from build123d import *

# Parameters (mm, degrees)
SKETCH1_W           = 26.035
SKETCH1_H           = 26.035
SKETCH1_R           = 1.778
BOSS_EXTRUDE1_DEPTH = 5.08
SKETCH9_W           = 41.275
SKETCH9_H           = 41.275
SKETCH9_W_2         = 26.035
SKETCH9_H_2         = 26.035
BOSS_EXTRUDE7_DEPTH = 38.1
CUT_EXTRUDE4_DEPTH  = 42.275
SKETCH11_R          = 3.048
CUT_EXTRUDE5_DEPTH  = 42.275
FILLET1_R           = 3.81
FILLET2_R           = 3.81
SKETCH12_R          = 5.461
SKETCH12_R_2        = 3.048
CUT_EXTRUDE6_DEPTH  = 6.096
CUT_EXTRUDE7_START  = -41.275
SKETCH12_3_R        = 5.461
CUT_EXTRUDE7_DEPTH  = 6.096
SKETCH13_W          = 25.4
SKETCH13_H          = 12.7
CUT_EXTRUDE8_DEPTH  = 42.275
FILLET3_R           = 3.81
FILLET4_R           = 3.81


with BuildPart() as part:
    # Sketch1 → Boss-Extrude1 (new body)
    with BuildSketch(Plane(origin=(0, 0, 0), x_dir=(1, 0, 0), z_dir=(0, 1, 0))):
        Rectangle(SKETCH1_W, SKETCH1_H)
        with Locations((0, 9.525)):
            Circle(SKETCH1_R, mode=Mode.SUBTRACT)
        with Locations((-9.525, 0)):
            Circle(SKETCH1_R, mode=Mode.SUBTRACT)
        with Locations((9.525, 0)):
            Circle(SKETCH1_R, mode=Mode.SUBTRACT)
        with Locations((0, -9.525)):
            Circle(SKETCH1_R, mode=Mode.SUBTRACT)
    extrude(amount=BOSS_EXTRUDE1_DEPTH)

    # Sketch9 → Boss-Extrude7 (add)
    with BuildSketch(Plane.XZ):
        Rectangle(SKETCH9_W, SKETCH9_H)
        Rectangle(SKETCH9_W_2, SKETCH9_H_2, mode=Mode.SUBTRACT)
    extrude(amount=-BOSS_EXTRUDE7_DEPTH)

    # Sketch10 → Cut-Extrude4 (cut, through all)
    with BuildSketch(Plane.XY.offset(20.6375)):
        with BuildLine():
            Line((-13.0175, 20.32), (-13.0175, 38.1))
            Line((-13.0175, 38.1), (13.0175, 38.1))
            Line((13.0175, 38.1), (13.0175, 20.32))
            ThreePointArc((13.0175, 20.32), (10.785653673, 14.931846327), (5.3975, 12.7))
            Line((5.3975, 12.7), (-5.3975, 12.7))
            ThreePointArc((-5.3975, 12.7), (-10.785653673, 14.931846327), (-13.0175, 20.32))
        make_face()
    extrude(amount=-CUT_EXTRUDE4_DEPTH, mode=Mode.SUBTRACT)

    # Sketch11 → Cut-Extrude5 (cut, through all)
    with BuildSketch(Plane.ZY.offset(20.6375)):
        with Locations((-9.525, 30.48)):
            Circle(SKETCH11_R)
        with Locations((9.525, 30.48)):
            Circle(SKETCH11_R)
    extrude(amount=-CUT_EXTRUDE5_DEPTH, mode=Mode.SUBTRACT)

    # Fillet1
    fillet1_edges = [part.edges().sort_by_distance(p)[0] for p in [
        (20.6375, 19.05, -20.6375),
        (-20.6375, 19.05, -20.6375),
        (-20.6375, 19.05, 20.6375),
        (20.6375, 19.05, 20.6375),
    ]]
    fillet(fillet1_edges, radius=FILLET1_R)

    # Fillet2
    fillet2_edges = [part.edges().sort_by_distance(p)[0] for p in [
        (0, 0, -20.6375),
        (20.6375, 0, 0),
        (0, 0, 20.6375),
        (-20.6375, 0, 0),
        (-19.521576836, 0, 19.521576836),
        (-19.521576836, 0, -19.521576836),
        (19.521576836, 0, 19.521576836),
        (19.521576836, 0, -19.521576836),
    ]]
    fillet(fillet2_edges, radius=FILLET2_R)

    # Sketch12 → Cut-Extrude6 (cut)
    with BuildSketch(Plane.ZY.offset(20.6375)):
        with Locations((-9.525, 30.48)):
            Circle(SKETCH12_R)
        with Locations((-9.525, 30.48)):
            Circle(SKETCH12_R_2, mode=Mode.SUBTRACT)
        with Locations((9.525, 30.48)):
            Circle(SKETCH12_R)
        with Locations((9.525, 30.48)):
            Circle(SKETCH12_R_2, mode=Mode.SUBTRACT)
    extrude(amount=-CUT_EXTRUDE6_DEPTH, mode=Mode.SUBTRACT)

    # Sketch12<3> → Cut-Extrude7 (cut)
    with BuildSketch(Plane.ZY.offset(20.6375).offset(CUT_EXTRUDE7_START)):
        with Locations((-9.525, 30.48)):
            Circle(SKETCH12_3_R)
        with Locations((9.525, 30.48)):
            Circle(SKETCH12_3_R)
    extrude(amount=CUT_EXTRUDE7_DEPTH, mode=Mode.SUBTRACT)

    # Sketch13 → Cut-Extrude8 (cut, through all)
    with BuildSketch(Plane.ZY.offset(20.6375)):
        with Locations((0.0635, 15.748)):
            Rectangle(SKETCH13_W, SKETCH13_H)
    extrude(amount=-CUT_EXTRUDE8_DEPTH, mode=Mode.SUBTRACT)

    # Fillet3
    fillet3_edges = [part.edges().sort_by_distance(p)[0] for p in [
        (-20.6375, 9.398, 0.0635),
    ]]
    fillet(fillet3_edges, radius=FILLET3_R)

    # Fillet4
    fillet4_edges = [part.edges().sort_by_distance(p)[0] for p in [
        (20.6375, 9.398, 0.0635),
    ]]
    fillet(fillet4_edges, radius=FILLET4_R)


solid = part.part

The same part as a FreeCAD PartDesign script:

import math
import FreeCAD as App
import Part
import Sketcher
from FreeCAD import Vector
Q = App.Units.Quantity


def edges_at(feature, points):
    """Names of the edges that pass closest to the given points."""
    edges = feature.Shape.Edges
    near = lambda p: min(range(len(edges)), key=lambda i: edges[i].distToShape(Part.Vertex(*p))[0])
    return sorted({f"Edge{near(p) + 1}" for p in points})


def add_polygon(sketch, points):
    """Adds a closed chain of lines whose ends are joined by coincident constraints."""
    first, n = sketch.GeometryCount, len(points)
    for a, b in zip(points, points[1:] + points[:1]):
        sketch.addGeometry(Part.LineSegment(App.Vector(*a, 0), App.Vector(*b, 0)), False)
    for i in range(n):
        sketch.addConstraint(Sketcher.Constraint("Coincident", first + i, 2, first + (i + 1) % n, 1))

doc = App.newDocument("Part")
body = doc.addObject("PartDesign::Body", "Body")

sketch1 = body.newObject("Sketcher::SketchObject", "Sketch")
sketch1.AttachmentSupport = (doc.getObject("XZ_Plane"), [""])
sketch1.MapMode = "FlatFace"
add_polygon(sketch1, [(-13, -13), (-13, 13), (13, 13), (13, -13)])
sketch1.addGeometry(Part.Circle(Vector(0, 9.5, 0), Vector(0, 0, 1), 1.8), False)
sketch1.addGeometry(Part.Circle(Vector(-9.5, 0, 0), Vector(0, 0, 1), 1.8), False)
sketch1.addGeometry(Part.Circle(Vector(9.5, 0, 0), Vector(0, 0, 1), 1.8), False)
sketch1.addGeometry(Part.Circle(Vector(0, -9.5, 0), Vector(0, 0, 1), 1.8), False)
sketch1.addConstraint(Sketcher.Constraint("Vertical", 0))
sketch1.addConstraint(Sketcher.Constraint("Horizontal", 1))
sketch1.addConstraint(Sketcher.Constraint("Vertical", 2))
sketch1.addConstraint(Sketcher.Constraint("Horizontal", 3))
sketch1.addConstraint(Sketcher.Constraint("Equal", 4, 5))
sketch1.addConstraint(Sketcher.Constraint("Equal", 5, 6))
sketch1.addConstraint(Sketcher.Constraint("Equal", 6, 7))
sketch1.addConstraint(Sketcher.Constraint("Symmetric", 5, 3, 6, 3, -1, 1))
sketch1.addConstraint(Sketcher.Constraint("Symmetric", 4, 3, 7, 3, -1, 1))
sketch1.addConstraint(Sketcher.Constraint("Symmetric", 0, 2, 2, 2, -1, 1))
sketch1.addConstraint(Sketcher.Constraint("PointOnObject", 4, 3, -2))
sketch1.addConstraint(Sketcher.Constraint("PointOnObject", 5, 3, -1))
sketch1.addConstraint(Sketcher.Constraint("Equal", 3, 0))
sketch1.addConstraint(Sketcher.Constraint("Diameter", 4, Q("0.14 in")))
sketch1.addConstraint(Sketcher.Constraint("DistanceX", 1, 1, 1, 2, Q("1.025 in")))
sketch1.addConstraint(Sketcher.Constraint("DistanceX", 5, 3, 6, 3, Q("0.75 in")))
sketch1.addConstraint(Sketcher.Constraint("DistanceY", 7, 3, 4, 3, Q("0.75 in")))
pad1 = body.newObject("PartDesign::Pad", "Pad")
pad1.Profile = sketch1
pad1.Length = Q("0.2 in")
pad1.Reversed = True

sketch2 = body.newObject("Sketcher::SketchObject", "Sketch001")
sketch2.AttachmentSupport = (doc.getObject("XZ_Plane"), [""])
sketch2.MapMode = "FlatFace"
add_polygon(sketch2, [(-21, 21), (-21, -21), (21, -21), (21, 21)])
add_polygon(sketch2, [(13, -13), (-13, -13), (-13, 13), (13, 13)])
sketch2.addConstraint(Sketcher.Constraint("Vertical", 0))
sketch2.addConstraint(Sketcher.Constraint("Horizontal", 1))
sketch2.addConstraint(Sketcher.Constraint("Vertical", 2))
sketch2.addConstraint(Sketcher.Constraint("Horizontal", 3))
sketch2.addConstraint(Sketcher.Constraint("Horizontal", 4))
sketch2.addConstraint(Sketcher.Constraint("Vertical", 5))
sketch2.addConstraint(Sketcher.Constraint("Horizontal", 6))
sketch2.addConstraint(Sketcher.Constraint("Vertical", 7))
sketch2.addConstraint(Sketcher.Constraint("Symmetric", 0, 2, 2, 2, -1, 1))
sketch2.addConstraint(Sketcher.Constraint("Symmetric", 4, 2, 6, 2, -1, 1))
sketch2.addConstraint(Sketcher.Constraint("Equal", 3, 0))
sketch2.addConstraint(Sketcher.Constraint("Equal", 6, 5))
sketch2.addConstraint(Sketcher.Constraint("DistanceX", 0, 2, 4, 2, Q("0.3 in")))
sketch2.addConstraint(Sketcher.Constraint("DistanceX", 1, 1, 1, 2, Q("1.625 in")))
pad2 = body.newObject("PartDesign::Pad", "Pad001")
pad2.Profile = sketch2
pad2.Length = Q("1.5 in")
pad2.Reversed = True

sketch3 = body.newObject("Sketcher::SketchObject", "Sketch002")
sketch3.AttachmentSupport = (doc.getObject("XY_Plane"), [""])
sketch3.MapMode = "FlatFace"
sketch3.AttachmentOffset = App.Placement(Vector(0, 0, 0.8125 * 25.4), App.Rotation())
sketch3.addGeometry(Part.LineSegment(Vector(-13, 38, 0), Vector(-13, 20, 0)), False)
sketch3.addGeometry(Part.ArcOfCircle(Part.Circle(Vector(-5, 20, 0), Vector(0, 0, 1), 8), math.radians(180), math.radians(270)), False)
sketch3.addGeometry(Part.LineSegment(Vector(-5, 13, 0), Vector(5, 13, 0)), False)
sketch3.addGeometry(Part.ArcOfCircle(Part.Circle(Vector(5, 20, 0), Vector(0, 0, 1), 8), math.radians(-90), math.radians(0)), False)
sketch3.addGeometry(Part.LineSegment(Vector(13, 20, 0), Vector(13, 38, 0)), False)
sketch3.addGeometry(Part.LineSegment(Vector(13, 38, 0), Vector(-13, 38, 0)), False)
sketch3.addConstraint(Sketcher.Constraint("Tangent", 0, 2, 1, 1))
sketch3.addConstraint(Sketcher.Constraint("Tangent", 1, 2, 2, 1))
sketch3.addConstraint(Sketcher.Constraint("Tangent", 2, 2, 3, 1))
sketch3.addConstraint(Sketcher.Constraint("Tangent", 3, 2, 4, 1))
sketch3.addConstraint(Sketcher.Constraint("Coincident", 4, 2, 5, 1))
sketch3.addConstraint(Sketcher.Constraint("Coincident", 5, 2, 0, 1))
sketch3.addConstraint(Sketcher.Constraint("Vertical", 0))
sketch3.addConstraint(Sketcher.Constraint("Horizontal", 2))
sketch3.addConstraint(Sketcher.Constraint("Vertical", 4))
sketch3.addConstraint(Sketcher.Constraint("Horizontal", 5))
sketch3.addConstraint(Sketcher.Constraint("Equal", 1, 3))
sketch3.addConstraint(Sketcher.Constraint("Radius", 1, Q("0.3 in")))
sketch3.addConstraint(Sketcher.Constraint("DistanceY", 0, 2, 0, 1, Q("0.7 in")))
sketch3.addConstraint(Sketcher.Constraint("DistanceY", -1, 1, 1, 3, Q("0.8 in")))
sketch3.addConstraint(Sketcher.Constraint("DistanceX", 2, 1, 2, 2, Q("0.425 in")))
sketch3.addConstraint(Sketcher.Constraint("DistanceX", 1, 3, -1, 1, Q("0.2125 in")))
pocket1 = body.newObject("PartDesign::Pocket", "Pocket")
pocket1.Profile = sketch3
pocket1.Type = "ThroughAll"

sketch4 = body.newObject("Sketcher::SketchObject", "Sketch003")
sketch4.AttachmentSupport = (doc.getObject("YZ_Plane"), [""])
sketch4.MapMode = "FlatFace"
sketch4.AttachmentOffset = App.Placement(Vector(0, 0, -0.8125 * 25.4), App.Rotation())
sketch4.addGeometry(Part.Circle(Vector(30.5, -9.5, 0), Vector(0, 0, 1), 3), False)
sketch4.addGeometry(Part.Circle(Vector(30.5, 9.5, 0), Vector(0, 0, 1), 3), False)
sketch4.addConstraint(Sketcher.Constraint("Equal", 0, 1))
sketch4.addConstraint(Sketcher.Constraint("Symmetric", 0, 3, 1, 3, -1))
sketch4.addConstraint(Sketcher.Constraint("Diameter", 0, Q("0.24 in")))
sketch4.addConstraint(Sketcher.Constraint("DistanceX", -1, 1, 0, 3, Q("1.2 in")))
sketch4.addConstraint(Sketcher.Constraint("DistanceY", 0, 3, 1, 3, Q("0.75 in")))
pocket2 = body.newObject("PartDesign::Pocket", "Pocket001")
pocket2.Profile = sketch4
pocket2.Type = "ThroughAll"
pocket2.Reversed = True
doc.recompute()

fillet = body.newObject("PartDesign::Fillet", "Fillet")
fillet.Base = (pocket2, edges_at(pocket2, [
    (20.637, 19.05, -20.637),
    (-20.637, 19.05, -20.637),
    (-20.637, 19.05, 20.637),
    (20.637, 19.05, 20.637),
]))
fillet.Radius = Q("0.15 in")
doc.recompute()

fillet2 = body.newObject("PartDesign::Fillet", "Fillet001")
fillet2.Base = (fillet, edges_at(fillet, [
    (0, 0, -20.637),
    (20.637, 0, 0),
    (0, 0, 20.637),
    (-20.637, 0, 0),
    (-19.522, 0, 19.522),
    (-19.522, 0, -19.522),
    (19.522, 0, 19.522),
    (19.522, 0, -19.522),
]))
fillet2.Radius = Q("0.15 in")

sketch5 = body.newObject("Sketcher::SketchObject", "Sketch004")
sketch5.AttachmentSupport = (doc.getObject("YZ_Plane"), [""])
sketch5.MapMode = "FlatFace"
sketch5.AttachmentOffset = App.Placement(Vector(0, 0, -0.8125 * 25.4), App.Rotation())
sketch5.addGeometry(Part.Circle(Vector(30.5, -9.5, 0), Vector(0, 0, 1), 5.5), False)
sketch5.addGeometry(Part.Circle(Vector(30.5, -9.5, 0), Vector(0, 0, 1), 3), False)
sketch5.addGeometry(Part.Circle(Vector(30.5, 9.5, 0), Vector(0, 0, 1), 5.5), False)
sketch5.addGeometry(Part.Circle(Vector(30.5, 9.5, 0), Vector(0, 0, 1), 3), False)
sketch5.addConstraint(Sketcher.Constraint("Coincident", 1, 3, 0, 3))
sketch5.addConstraint(Sketcher.Constraint("Coincident", 3, 3, 2, 3))
sketch5.addConstraint(Sketcher.Constraint("Equal", 0, 2))
sketch5.addConstraint(Sketcher.Constraint("Equal", 1, 3))
sketch5.addConstraint(Sketcher.Constraint("Symmetric", 0, 3, 2, 3, -1))
sketch5.addConstraint(Sketcher.Constraint("Diameter", 0, Q("0.43 in")))
sketch5.addConstraint(Sketcher.Constraint("Diameter", 1, Q("0.24 in")))
sketch5.addConstraint(Sketcher.Constraint("DistanceX", -1, 1, 0, 3, Q("1.2 in")))
sketch5.addConstraint(Sketcher.Constraint("DistanceY", 0, 3, 2, 3, Q("0.75 in")))
pocket3 = body.newObject("PartDesign::Pocket", "Pocket002")
pocket3.Profile = sketch5
pocket3.Length = Q("0.24 in")
pocket3.Reversed = True

sketch6 = body.newObject("Sketcher::SketchObject", "Sketch005")
sketch6.AttachmentSupport = (doc.getObject("YZ_Plane"), [""])
sketch6.MapMode = "FlatFace"
sketch6.AttachmentOffset = App.Placement(Vector(0, 0, 0.8125 * 25.4), App.Rotation())
sketch6.addGeometry(Part.Circle(Vector(30, -10, 0), Vector(0, 0, 1), 5), False)
sketch6.addGeometry(Part.Circle(Vector(30, 10, 0), Vector(0, 0, 1), 5), False)
sketch6.addConstraint(Sketcher.Constraint("Equal", 0, 1))
sketch6.addConstraint(Sketcher.Constraint("Symmetric", 0, 3, 1, 3, -1))
sketch6.addConstraint(Sketcher.Constraint("Diameter", 0, Q("0.43 in")))
sketch6.addConstraint(Sketcher.Constraint("DistanceX", -1, 1, 0, 3, Q("1.2 in")))
sketch6.addConstraint(Sketcher.Constraint("DistanceY", 0, 3, 1, 3, Q("0.75 in")))
pocket4 = body.newObject("PartDesign::Pocket", "Pocket003")
pocket4.Profile = sketch6
pocket4.Length = Q("0.24 in")

sketch7 = body.newObject("Sketcher::SketchObject", "Sketch006")
sketch7.AttachmentSupport = (doc.getObject("YZ_Plane"), [""])
sketch7.MapMode = "FlatFace"
sketch7.AttachmentOffset = App.Placement(Vector(0, 0, -0.8125 * 25.4), App.Rotation())
add_polygon(sketch7, [(22, -13), (9, -13), (9, 13), (22, 13)])
sketch7.addConstraint(Sketcher.Constraint("Horizontal", 0))
sketch7.addConstraint(Sketcher.Constraint("Vertical", 1))
sketch7.addConstraint(Sketcher.Constraint("Horizontal", 2))
sketch7.addConstraint(Sketcher.Constraint("Vertical", 3))
sketch7.addConstraint(Sketcher.Constraint("DistanceY", 1, 1, 1, 2, Q("1 in")))
sketch7.addConstraint(Sketcher.Constraint("DistanceX", 0, 2, 0, 1, Q("0.5 in")))
sketch7.addConstraint(Sketcher.Constraint("DistanceX", -1, 1, 0, 2, Q("0.37 in")))
sketch7.addConstraint(Sketcher.Constraint("DistanceY", 0, 2, -1, 1, Q("0.4975 in")))
pocket5 = body.newObject("PartDesign::Pocket", "Pocket004")
pocket5.Profile = sketch7
pocket5.Type = "ThroughAll"
pocket5.Reversed = True
doc.recompute()

fillet3 = body.newObject("PartDesign::Fillet", "Fillet002")
fillet3.Base = (pocket5, edges_at(pocket5, [(-20.637, 9.398, 0.064)]))
fillet3.Radius = Q("0.15 in")
doc.recompute()

fillet4 = body.newObject("PartDesign::Fillet", "Fillet003")
fillet4.Base = (fillet3, edges_at(fillet3, [(20.637, 9.398, 0.064)]))
fillet4.Radius = Q("0.15 in")

doc.recompute()
